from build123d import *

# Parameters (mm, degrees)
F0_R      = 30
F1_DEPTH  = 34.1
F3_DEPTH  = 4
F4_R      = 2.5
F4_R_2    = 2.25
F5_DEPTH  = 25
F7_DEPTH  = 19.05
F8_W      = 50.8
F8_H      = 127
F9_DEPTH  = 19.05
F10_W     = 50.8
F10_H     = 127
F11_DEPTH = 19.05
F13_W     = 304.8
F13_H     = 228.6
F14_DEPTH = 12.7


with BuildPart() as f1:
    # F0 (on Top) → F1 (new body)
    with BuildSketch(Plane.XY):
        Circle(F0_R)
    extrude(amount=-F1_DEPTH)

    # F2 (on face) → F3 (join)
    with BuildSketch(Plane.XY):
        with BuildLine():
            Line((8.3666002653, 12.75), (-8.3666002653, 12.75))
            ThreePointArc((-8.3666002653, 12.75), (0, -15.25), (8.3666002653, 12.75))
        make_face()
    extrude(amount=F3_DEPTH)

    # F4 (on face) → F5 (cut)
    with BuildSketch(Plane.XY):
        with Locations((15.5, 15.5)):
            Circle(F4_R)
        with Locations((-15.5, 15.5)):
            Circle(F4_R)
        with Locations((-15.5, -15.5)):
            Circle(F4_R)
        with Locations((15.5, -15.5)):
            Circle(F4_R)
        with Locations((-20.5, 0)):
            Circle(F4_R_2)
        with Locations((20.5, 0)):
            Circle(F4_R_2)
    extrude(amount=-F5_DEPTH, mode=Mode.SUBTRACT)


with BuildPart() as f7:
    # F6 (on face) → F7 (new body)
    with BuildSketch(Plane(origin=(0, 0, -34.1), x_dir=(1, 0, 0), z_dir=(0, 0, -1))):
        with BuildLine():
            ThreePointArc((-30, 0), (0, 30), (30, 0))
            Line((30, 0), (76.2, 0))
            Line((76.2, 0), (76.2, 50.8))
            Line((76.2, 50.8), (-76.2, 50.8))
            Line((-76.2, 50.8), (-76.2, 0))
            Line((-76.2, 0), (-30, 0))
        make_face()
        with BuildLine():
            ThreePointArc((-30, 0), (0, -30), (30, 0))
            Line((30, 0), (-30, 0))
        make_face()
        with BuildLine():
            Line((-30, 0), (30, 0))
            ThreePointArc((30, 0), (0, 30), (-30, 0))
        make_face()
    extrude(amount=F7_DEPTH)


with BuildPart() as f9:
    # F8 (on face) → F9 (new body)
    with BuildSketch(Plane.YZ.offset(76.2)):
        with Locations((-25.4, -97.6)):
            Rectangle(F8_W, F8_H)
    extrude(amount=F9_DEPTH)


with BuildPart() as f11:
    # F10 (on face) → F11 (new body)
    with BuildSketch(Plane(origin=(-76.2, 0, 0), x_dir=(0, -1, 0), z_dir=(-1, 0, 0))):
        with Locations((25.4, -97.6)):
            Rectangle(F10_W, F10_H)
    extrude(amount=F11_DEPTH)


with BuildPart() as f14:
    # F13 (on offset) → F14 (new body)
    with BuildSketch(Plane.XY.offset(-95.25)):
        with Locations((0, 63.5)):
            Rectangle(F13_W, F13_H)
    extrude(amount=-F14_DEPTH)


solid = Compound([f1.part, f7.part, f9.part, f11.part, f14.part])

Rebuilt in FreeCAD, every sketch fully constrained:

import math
import FreeCAD as App
import Part
import Sketcher

V = App.Vector

doc = App.newDocument("Part")
body = doc.addObject("PartDesign::Body", "Body")

sketch1 = doc.addObject("Sketcher::SketchObject", "Sketch")
body.addObject(sketch1)
sketch1.AttachmentSupport = (doc.XY_Plane, [""])
sketch1.MapMode = "FlatFace"
sketch1.addGeometry(Part.Circle(V(0, 0, 0), V(0, 0, 1), 30), False)
sketch1.addConstraint(Sketcher.Constraint("Coincident", 0, 3, -1, 1))
sketch1.addConstraint(Sketcher.Constraint("Diameter", 0, 60.0))
pad1 = doc.addObject("PartDesign::Pad", "Pad")
body.addObject(pad1)
pad1.Profile = sketch1
pad1.Length = 34.1
pad1.Reversed = True

sketch2 = doc.addObject("Sketcher::SketchObject", "Sketch001")
body.addObject(sketch2)
sketch2.AttachmentSupport = (doc.XY_Plane, [""])
sketch2.MapMode = "FlatFace"
sketch2.addGeometry(Part.LineSegment(V(8, 13, 0), V(-8, 13, 0)), False)
sketch2.addGeometry(Part.ArcOfCircle(Part.Circle(V(0, 0, 0), V(0, 0, 1), 15), math.radians(123), math.radians(417)), False)
sketch2.addConstraint(Sketcher.Constraint("Coincident", 0, 1, 1, 2))
sketch2.addConstraint(Sketcher.Constraint("Coincident", 1, 1, 0, 2))
sketch2.addConstraint(Sketcher.Constraint("Horizontal", 0))
sketch2.addConstraint(Sketcher.Constraint("Coincident", 1, 3, -1, 1))
sketch2.addConstraint(Sketcher.Constraint("Radius", 1, 15.25))
sketch2.addConstraint(Sketcher.Constraint("DistanceY", -1, 1, 0, 1, 12.75))
pad2 = doc.addObject("PartDesign::Pad", "Pad001")
body.addObject(pad2)
pad2.Profile = sketch2
pad2.Length = 4

sketch3 = doc.addObject("Sketcher::SketchObject", "Sketch002")
body.addObject(sketch3)
sketch3.AttachmentSupport = (doc.XY_Plane, [""])
sketch3.MapMode = "FlatFace"
sketch3.addGeometry(Part.Circle(V(15.5, 15.5, 0), V(0, 0, 1), 2.5), False)
sketch3.addGeometry(Part.Circle(V(-15.5, 15.5, 0), V(0, 0, 1), 2.5), False)
sketch3.addGeometry(Part.Circle(V(-15.5, -15.5, 0), V(0, 0, 1), 2.5), False)
sketch3.addGeometry(Part.Circle(V(15.5, -15.5, 0), V(0, 0, 1), 2.5), False)
sketch3.addGeometry(Part.Circle(V(-20.5, 0, 0), V(0, 0, 1), 2.2), False)
sketch3.addGeometry(Part.Circle(V(20.5, 0, 0), V(0, 0, 1), 2.2), False)
sketch3.addConstraint(Sketcher.Constraint("Equal", 0, 1))
sketch3.addConstraint(Sketcher.Constraint("Equal", 1, 2))
sketch3.addConstraint(Sketcher.Constraint("Equal", 2, 3))
sketch3.addConstraint(Sketcher.Constraint("Equal", 4, 5))
sketch3.addConstraint(Sketcher.Constraint("Symmetric", 0, 3, 2, 3, -1, 1))
sketch3.addConstraint(Sketcher.Constraint("Symmetric", 1, 3, 3, 3, -1, 1))
sketch3.addConstraint(Sketcher.Constraint("Symmetric", 4, 3, 5, 3, -1, 1))
sketch3.addConstraint(Sketcher.Constraint("Symmetric", 0, 3, 1, 3, -2))
sketch3.addConstraint(Sketcher.Constraint("PointOnObject", 4, 3, -1))
sketch3.addConstraint(Sketcher.Constraint("Diameter", 0, 5.0))
sketch3.addConstraint(Sketcher.Constraint("Diameter", 4, 4.5))
sketch3.addConstraint(Sketcher.Constraint("DistanceX", 1, 3, 0, 3, 31.0))
sketch3.addConstraint(Sketcher.Constraint("DistanceY", 2, 3, 1, 3, 31.0))
sketch3.addConstraint(Sketcher.Constraint("DistanceX", 4, 3, 1, 3, 5.0))
pocket1 = doc.addObject("PartDesign::Pocket", "Pocket")
body.addObject(pocket1)
pocket1.Profile = sketch3
pocket1.Length = 25
body2 = doc.addObject("PartDesign::Body", "Body001")

sketch4 = doc.addObject("Sketcher::SketchObject", "Sketch003")
body2.addObject(sketch4)
sketch4.AttachmentSupport = (doc.getObject("XY_Plane001"), [""])
sketch4.MapMode = "FlatFace"
sketch4.AttachmentOffset = App.Placement(V(0, 0, -34.1), App.Rotation())
sketch4.addGeometry(Part.LineSegment(V(30, 0, 0), V(76, 0, 0)), False)
sketch4.addGeometry(Part.LineSegment(V(76, 0, 0), V(76, -51, 0)), False)
sketch4.addGeometry(Part.LineSegment(V(76, -51, 0), V(-76, -51, 0)), False)
sketch4.addGeometry(Part.LineSegment(V(-76, -51, 0), V(-76, 0, 0)), False)
sketch4.addGeometry(Part.LineSegment(V(-76, 0, 0), V(-30, 0, 0)), False)
sketch4.addGeometry(Part.ArcOfCircle(Part.Circle(V(0, 0, 0), V(0, 0, 1), 30), math.radians(0), math.radians(180)), False)
sketch4.addConstraint(Sketcher.Constraint("Coincident", 0, 2, 1, 1))
sketch4.addConstraint(Sketcher.Constraint("Coincident", 1, 2, 2, 1))
sketch4.addConstraint(Sketcher.Constraint("Coincident", 2, 2, 3, 1))
sketch4.addConstraint(Sketcher.Constraint("Coincident", 3, 2, 4, 1))
sketch4.addConstraint(Sketcher.Constraint("Coincident", 4, 2, 5, 2))
sketch4.addConstraint(Sketcher.Constraint("Coincident", 5, 1, 0, 1))
sketch4.addConstraint(Sketcher.Constraint("Horizontal", 0))
sketch4.addConstraint(Sketcher.Constraint("Vertical", 1))
sketch4.addConstraint(Sketcher.Constraint("Horizontal", 2))
sketch4.addConstraint(Sketcher.Constraint("Vertical", 3))
sketch4.addConstraint(Sketcher.Constraint("Horizontal", 4))
sketch4.addConstraint(Sketcher.Constraint("Coincident", 5, 3, -1, 1))
sketch4.addConstraint(Sketcher.Constraint("Symmetric", 0, 2, 3, 2, -1, 1))
sketch4.addConstraint(Sketcher.Constraint("PointOnObject", 0, 2, -1))
sketch4.addConstraint(Sketcher.Constraint("Radius", 5, 30.0))
sketch4.addConstraint(Sketcher.Constraint("DistanceX", 0, 1, 0, 2, 46.2))
sketch4.addConstraint(Sketcher.Constraint("DistanceY", 1, 2, 1, 1, 50.8))
pad3 = doc.addObject("PartDesign::Pad", "Pad002")
body2.addObject(pad3)
pad3.Profile = sketch4
pad3.Length = 19.05
pad3.Reversed = True
body3 = doc.addObject("PartDesign::Body", "Body002")

sketch5 = doc.addObject("Sketcher::SketchObject", "Sketch004")
body3.addObject(sketch5)
sketch5.AttachmentSupport = (doc.getObject("YZ_Plane002"), [""])
sketch5.MapMode = "FlatFace"
sketch5.AttachmentOffset = App.Placement(V(0, 0, 76.2), App.Rotation())
sketch5.addGeometry(Part.LineSegment(V(-51, -34, 0), V(-51, -161, 0)), False)
sketch5.addGeometry(Part.LineSegment(V(-51, -161, 0), V(0, -161, 0)), False)
sketch5.addGeometry(Part.LineSegment(V(0, -161, 0), V(0, -34, 0)), False)
sketch5.addGeometry(Part.LineSegment(V(0, -34, 0), V(-51, -34, 0)), False)
sketch5.addConstraint(Sketcher.Constraint("Coincident", 0, 2, 1, 1))
sketch5.addConstraint(Sketcher.Constraint("Coincident", 1, 2, 2, 1))
sketch5.addConstraint(Sketcher.Constraint("Coincident", 2, 2, 3, 1))
sketch5.addConstraint(Sketcher.Constraint("Coincident", 3, 2, 0, 1))
sketch5.addConstraint(Sketcher.Constraint("Vertical", 0))
sketch5.addConstraint(Sketcher.Constraint("Horizontal", 1))
sketch5.addConstraint(Sketcher.Constraint("Vertical", 2))
sketch5.addConstraint(Sketcher.Constraint("Horizontal", 3))
sketch5.addConstraint(Sketcher.Constraint("PointOnObject", 1, 2, -2))
sketch5.addConstraint(Sketcher.Constraint("DistanceY", 0, 2, 0, 1, 127.0))
sketch5.addConstraint(Sketcher.Constraint("DistanceX", 1, 1, 1, 2, 50.8))
sketch5.addConstraint(Sketcher.Constraint("DistanceY", 0, 2, -1, 1, 161.1))
pad4 = doc.addObject("PartDesign::Pad", "Pad003")
body3.addObject(pad4)
pad4.Profile = sketch5
pad4.Length = 19.05
body4 = doc.addObject("PartDesign::Body", "Body003")

sketch6 = doc.addObject("Sketcher::SketchObject", "Sketch005")
body4.addObject(sketch6)
sketch6.AttachmentSupport = (doc.getObject("YZ_Plane003"), [""])
sketch6.MapMode = "FlatFace"
sketch6.AttachmentOffset = App.Placement(V(0, 0, -76.2), App.Rotation())
sketch6.addGeometry(Part.LineSegment(V(0, -34, 0), V(0, -161, 0)), False)
sketch6.addGeometry(Part.LineSegment(V(0, -161, 0), V(-51, -161, 0)), False)
sketch6.addGeometry(Part.LineSegment(V(-51, -161, 0), V(-51, -34, 0)), False)
sketch6.addGeometry(Part.LineSegment(V(-51, -34, 0), V(0, -34, 0)), False)
sketch6.addConstraint(Sketcher.Constraint("Coincident", 0, 2, 1, 1))
sketch6.addConstraint(Sketcher.Constraint("Coincident", 1, 2, 2, 1))
sketch6.addConstraint(Sketcher.Constraint("Coincident", 2, 2, 3, 1))
sketch6.addConstraint(Sketcher.Constraint("Coincident", 3, 2, 0, 1))
sketch6.addConstraint(Sketcher.Constraint("Vertical", 0))
sketch6.addConstraint(Sketcher.Constraint("Horizontal", 1))
sketch6.addConstraint(Sketcher.Constraint("Vertical", 2))
sketch6.addConstraint(Sketcher.Constraint("Horizontal", 3))
sketch6.addConstraint(Sketcher.Constraint("PointOnObject", 0, 2, -2))
sketch6.addConstraint(Sketcher.Constraint("DistanceY", 0, 2, 0, 1, 127.0))
sketch6.addConstraint(Sketcher.Constraint("DistanceX", 1, 2, 1, 1, 50.8))
sketch6.addConstraint(Sketcher.Constraint("DistanceY", 0, 2, -1, 1, 161.1))
pad5 = doc.addObject("PartDesign::Pad", "Pad004")
body4.addObject(pad5)
pad5.Profile = sketch6
pad5.Length = 19.05
pad5.Reversed = True
body5 = doc.addObject("PartDesign::Body", "Body004")

sketch7 = doc.addObject("Sketcher::SketchObject", "Sketch006")
body5.addObject(sketch7)
sketch7.AttachmentSupport = (doc.getObject("XY_Plane004"), [""])
sketch7.MapMode = "FlatFace"
sketch7.AttachmentOffset = App.Placement(V(0, 0, -95.25), App.Rotation())
sketch7.addGeometry(Part.LineSegment(V(-152, 178, 0), V(-152, -51, 0)), False)
sketch7.addGeometry(Part.LineSegment(V(-152, -51, 0), V(152, -51, 0)), False)
sketch7.addGeometry(Part.LineSegment(V(152, -51, 0), V(152, 178, 0)), False)
sketch7.addGeometry(Part.LineSegment(V(152, 178, 0), V(-152, 178, 0)), False)
sketch7.addConstraint(Sketcher.Constraint("Coincident", 0, 2, 1, 1))
sketch7.addConstraint(Sketcher.Constraint("Coincident", 1, 2, 2, 1))
sketch7.addConstraint(Sketcher.Constraint("Coincident", 2, 2, 3, 1))
sketch7.addConstraint(Sketcher.Constraint("Coincident", 3, 2, 0, 1))
sketch7.addConstraint(Sketcher.Constraint("Vertical", 0))
sketch7.addConstraint(Sketcher.Constraint("Horizontal", 1))
sketch7.addConstraint(Sketcher.Constraint("Vertical", 2))
sketch7.addConstraint(Sketcher.Constraint("Horizontal", 3))
sketch7.addConstraint(Sketcher.Constraint("DistanceX", 1, 1, 1, 2, 304.8))
sketch7.addConstraint(Sketcher.Constraint("DistanceY", 0, 2, 0, 1, 228.6))
sketch7.addConstraint(Sketcher.Constraint("DistanceX", 0, 2, -1, 1, 152.4))
sketch7.addConstraint(Sketcher.Constraint("DistanceY", 0, 2, -1, 1, 50.8))
pad6 = doc.addObject("PartDesign::Pad", "Pad005")
body5.addObject(pad6)
pad6.Profile = sketch7
pad6.Length = 12.7
pad6.Reversed = True

doc.recompute()
